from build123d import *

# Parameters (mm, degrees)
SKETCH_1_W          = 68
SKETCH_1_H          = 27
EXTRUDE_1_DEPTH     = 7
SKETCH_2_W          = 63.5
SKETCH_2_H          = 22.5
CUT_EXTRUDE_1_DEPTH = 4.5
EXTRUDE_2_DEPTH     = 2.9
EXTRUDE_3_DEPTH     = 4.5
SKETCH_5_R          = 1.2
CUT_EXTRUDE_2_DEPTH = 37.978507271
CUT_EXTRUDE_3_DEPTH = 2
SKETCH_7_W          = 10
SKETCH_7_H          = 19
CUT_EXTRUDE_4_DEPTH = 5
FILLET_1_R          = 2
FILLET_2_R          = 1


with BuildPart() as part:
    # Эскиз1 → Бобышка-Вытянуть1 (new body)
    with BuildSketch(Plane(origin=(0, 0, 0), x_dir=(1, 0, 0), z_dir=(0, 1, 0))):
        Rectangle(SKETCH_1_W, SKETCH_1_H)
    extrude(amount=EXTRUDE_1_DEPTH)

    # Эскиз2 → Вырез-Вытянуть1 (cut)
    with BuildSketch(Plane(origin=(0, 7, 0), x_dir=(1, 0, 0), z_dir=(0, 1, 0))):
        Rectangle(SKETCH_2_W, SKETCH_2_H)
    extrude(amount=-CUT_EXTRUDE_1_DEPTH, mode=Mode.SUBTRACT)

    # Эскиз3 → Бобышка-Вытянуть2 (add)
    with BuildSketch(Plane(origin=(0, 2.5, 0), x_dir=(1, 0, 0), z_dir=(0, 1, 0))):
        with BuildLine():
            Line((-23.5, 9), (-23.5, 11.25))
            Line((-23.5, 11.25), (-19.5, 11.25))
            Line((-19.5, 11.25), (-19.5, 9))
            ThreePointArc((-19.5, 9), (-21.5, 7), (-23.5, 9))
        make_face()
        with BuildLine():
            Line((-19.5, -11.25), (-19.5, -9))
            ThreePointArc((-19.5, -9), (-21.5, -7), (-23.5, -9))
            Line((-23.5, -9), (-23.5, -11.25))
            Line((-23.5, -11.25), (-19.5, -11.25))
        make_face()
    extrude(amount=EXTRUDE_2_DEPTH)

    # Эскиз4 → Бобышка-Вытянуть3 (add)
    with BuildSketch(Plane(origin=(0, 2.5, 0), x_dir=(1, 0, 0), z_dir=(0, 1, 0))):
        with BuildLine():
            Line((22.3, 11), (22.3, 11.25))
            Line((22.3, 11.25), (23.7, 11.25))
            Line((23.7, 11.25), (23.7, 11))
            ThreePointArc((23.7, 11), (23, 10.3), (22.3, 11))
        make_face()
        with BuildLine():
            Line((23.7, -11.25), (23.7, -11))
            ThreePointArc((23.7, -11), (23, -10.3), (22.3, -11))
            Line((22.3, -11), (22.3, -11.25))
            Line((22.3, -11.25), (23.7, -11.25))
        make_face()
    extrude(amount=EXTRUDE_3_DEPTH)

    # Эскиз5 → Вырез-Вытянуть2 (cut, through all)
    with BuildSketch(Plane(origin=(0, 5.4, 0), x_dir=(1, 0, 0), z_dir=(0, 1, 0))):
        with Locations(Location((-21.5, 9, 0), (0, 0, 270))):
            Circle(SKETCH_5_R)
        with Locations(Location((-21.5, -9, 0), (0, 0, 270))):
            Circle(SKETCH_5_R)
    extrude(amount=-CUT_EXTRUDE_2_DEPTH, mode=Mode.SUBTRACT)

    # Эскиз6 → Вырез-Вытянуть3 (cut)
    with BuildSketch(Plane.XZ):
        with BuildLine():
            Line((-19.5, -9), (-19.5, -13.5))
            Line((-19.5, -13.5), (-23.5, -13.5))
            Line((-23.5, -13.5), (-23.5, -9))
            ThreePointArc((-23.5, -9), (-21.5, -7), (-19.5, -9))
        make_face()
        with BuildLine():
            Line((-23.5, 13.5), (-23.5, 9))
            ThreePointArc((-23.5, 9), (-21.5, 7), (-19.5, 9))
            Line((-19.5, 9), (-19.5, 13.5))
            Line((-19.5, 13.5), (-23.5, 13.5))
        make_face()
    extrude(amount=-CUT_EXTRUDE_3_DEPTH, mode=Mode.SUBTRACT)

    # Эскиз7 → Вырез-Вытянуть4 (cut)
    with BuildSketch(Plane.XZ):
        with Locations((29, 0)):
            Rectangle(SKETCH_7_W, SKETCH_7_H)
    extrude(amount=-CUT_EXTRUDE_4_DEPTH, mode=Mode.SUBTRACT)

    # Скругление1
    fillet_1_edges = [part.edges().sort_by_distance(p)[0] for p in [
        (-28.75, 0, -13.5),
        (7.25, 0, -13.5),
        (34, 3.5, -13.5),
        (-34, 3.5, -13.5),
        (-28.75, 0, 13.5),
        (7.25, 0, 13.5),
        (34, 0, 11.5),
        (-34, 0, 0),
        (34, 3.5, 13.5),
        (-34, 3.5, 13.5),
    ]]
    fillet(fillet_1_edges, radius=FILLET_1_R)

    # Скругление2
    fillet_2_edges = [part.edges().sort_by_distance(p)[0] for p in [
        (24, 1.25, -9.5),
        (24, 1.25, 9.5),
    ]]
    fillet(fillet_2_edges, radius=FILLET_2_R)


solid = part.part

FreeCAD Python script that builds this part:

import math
import FreeCAD as App
import Part
import Sketcher
from FreeCAD import Vector
Q = App.Units.Quantity


def edges_at(feature, points):
    """Names of the edges that pass closest to the given points."""
    edges = feature.Shape.Edges
    near = lambda p: min(range(len(edges)), key=lambda i: edges[i].distToShape(Part.Vertex(*p))[0])
    return sorted({f"Edge{near(p) + 1}" for p in points})

doc = App.newDocument("Part")
body = doc.addObject("PartDesign::Body", "Body")

# Sketch on XZ plane
sketch1 = body.newObject("Sketcher::SketchObject", "Sketch")
sketch1.AttachmentSupport = (doc.getObject("XZ_Plane"), [""])
sketch1.MapMode = "FlatFace"
sketch1.addGeometry(Part.LineSegment(Vector(-34, -13.5, 0), Vector(-34, 13.5, 0)), False)
sketch1.addGeometry(Part.LineSegment(Vector(-34, 13.5, 0), Vector(34, 13.5, 0)), False)
sketch1.addGeometry(Part.LineSegment(Vector(34, 13.5, 0), Vector(34, -13.5, 0)), False)
sketch1.addGeometry(Part.LineSegment(Vector(34, -13.5, 0), Vector(-34, -13.5, 0)), False)
sketch1.addConstraint(Sketcher.Constraint("Coincident", 0, 2, 1, 1))
sketch1.addConstraint(Sketcher.Constraint("Coincident", 1, 2, 2, 1))
sketch1.addConstraint(Sketcher.Constraint("Coincident", 2, 2, 3, 1))
sketch1.addConstraint(Sketcher.Constraint("Coincident", 3, 2, 0, 1))
sketch1.addConstraint(Sketcher.Constraint("Vertical", 0))
sketch1.addConstraint(Sketcher.Constraint("Horizontal", 1))
sketch1.addConstraint(Sketcher.Constraint("Vertical", 2))
sketch1.addConstraint(Sketcher.Constraint("Horizontal", 3))
sketch1.addConstraint(Sketcher.Constraint("Symmetric", 0, 2, 2, 2, -1, 1))
sketch1.addConstraint(Sketcher.Constraint("DistanceX", 1, 1, 1, 2, Q("68 mm")))
sketch1.addConstraint(Sketcher.Constraint("DistanceY", 0, 1, 0, 2, Q("27 mm")))
pad1 = body.newObject("PartDesign::Pad", "Pad")
pad1.Profile = sketch1
pad1.Length = 7
pad1.Reversed = True

# Sketch on XZ plane
sketch2 = body.newObject("Sketcher::SketchObject", "Sketch001")
sketch2.AttachmentSupport = (doc.getObject("XZ_Plane"), [""])
sketch2.MapMode = "FlatFace"
sketch2.AttachmentOffset = App.Placement(Vector(0, 0, -7), App.Rotation())
sketch2.addGeometry(Part.LineSegment(Vector(-31.75, -11.25, 0), Vector(-31.75, 11.25, 0)), False)
sketch2.addGeometry(Part.LineSegment(Vector(-31.75, 11.25, 0), Vector(31.75, 11.25, 0)), False)
sketch2.addGeometry(Part.LineSegment(Vector(31.75, 11.25, 0), Vector(31.75, -11.25, 0)), False)
sketch2.addGeometry(Part.LineSegment(Vector(31.75, -11.25, 0), Vector(-31.75, -11.25, 0)), False)
sketch2.addConstraint(Sketcher.Constraint("Coincident", 0, 2, 1, 1))
sketch2.addConstraint(Sketcher.Constraint("Coincident", 1, 2, 2, 1))
sketch2.addConstraint(Sketcher.Constraint("Coincident", 2, 2, 3, 1))
sketch2.addConstraint(Sketcher.Constraint("Coincident", 3, 2, 0, 1))
sketch2.addConstraint(Sketcher.Constraint("Vertical", 0))
sketch2.addConstraint(Sketcher.Constraint("Horizontal", 1))
sketch2.addConstraint(Sketcher.Constraint("Vertical", 2))
sketch2.addConstraint(Sketcher.Constraint("Horizontal", 3))
sketch2.addConstraint(Sketcher.Constraint("Symmetric", 0, 2, 2, 2, -1, 1))
sketch2.addConstraint(Sketcher.Constraint("DistanceX", 1, 1, 1, 2, Q("63.5 mm")))
sketch2.addConstraint(Sketcher.Constraint("DistanceY", 0, 1, 0, 2, Q("22.5 mm")))
pocket1 = body.newObject("PartDesign::Pocket", "Pocket")
pocket1.Profile = sketch2
pocket1.Length = 4.5
pocket1.Reversed = True

# Sketch on XZ plane
sketch3 = body.newObject("Sketcher::SketchObject", "Sketch002")
sketch3.AttachmentSupport = (doc.getObject("XZ_Plane"), [""])
sketch3.MapMode = "FlatFace"
sketch3.AttachmentOffset = App.Placement(Vector(0, 0, -2.5), App.Rotation())
sketch3.addGeometry(Part.LineSegment(Vector(-23.5, -11.25, 0), Vector(-23.5, -9, 0)), False)
sketch3.addGeometry(Part.ArcOfCircle(Part.Circle(Vector(-21.5, -9, 0), Vector(0, 0, 1), 2), math.radians(0), math.radians(180)), False)
sketch3.addGeometry(Part.LineSegment(Vector(-19.5, -9, 0), Vector(-19.5, -11.25, 0)), False)
sketch3.addGeometry(Part.LineSegment(Vector(-19.5, -11.25, 0), Vector(-23.5, -11.25, 0)), False)
sketch3.addGeometry(Part.LineSegment(Vector(-19.5, 11.25, 0), Vector(-19.5, 9, 0)), False)
sketch3.addGeometry(Part.ArcOfCircle(Part.Circle(Vector(-21.5, 9, 0), Vector(0, 0, 1), 2), math.radians(180), math.radians(360)), False)
sketch3.addGeometry(Part.LineSegment(Vector(-23.5, 9, 0), Vector(-23.5, 11.25, 0)), False)
sketch3.addGeometry(Part.LineSegment(Vector(-23.5, 11.25, 0), Vector(-19.5, 11.25, 0)), False)
sketch3.addConstraint(Sketcher.Constraint("Tangent", 0, 2, 1, 2))
sketch3.addConstraint(Sketcher.Constraint("Tangent", 1, 1, 2, 1))
sketch3.addConstraint(Sketcher.Constraint("Coincident", 2, 2, 3, 1))
sketch3.addConstraint(Sketcher.Constraint("Coincident", 3, 2, 0, 1))
sketch3.addConstraint(Sketcher.Constraint("Tangent", 4, 2, 5, 2))
sketch3.addConstraint(Sketcher.Constraint("Tangent", 5, 1, 6, 1))
sketch3.addConstraint(Sketcher.Constraint("Coincident", 6, 2, 7, 1))
sketch3.addConstraint(Sketcher.Constraint("Coincident", 7, 2, 4, 1))
sketch3.addConstraint(Sketcher.Constraint("Vertical", 0))
sketch3.addConstraint(Sketcher.Constraint("Vertical", 2))
sketch3.addConstraint(Sketcher.Constraint("Horizontal", 3))
sketch3.addConstraint(Sketcher.Constraint("Vertical", 4))
sketch3.addConstraint(Sketcher.Constraint("Vertical", 6))
sketch3.addConstraint(Sketcher.Constraint("Horizontal", 7))
sketch3.addConstraint(Sketcher.Constraint("Equal", 1, 5))
sketch3.addConstraint(Sketcher.Constraint("Symmetric", 1, 3, 5, 3, -1))
sketch3.addConstraint(Sketcher.Constraint("Equal", 2, 4))
sketch3.addConstraint(Sketcher.Constraint("Radius", 1, Q("2 mm")))
sketch3.addConstraint(Sketcher.Constraint("DistanceY", 1, 3, -1, 1, Q("9 mm")))
sketch3.addConstraint(Sketcher.Constraint("DistanceY", 0, 1, 0, 2, Q("2.25 mm")))
sketch3.addConstraint(Sketcher.Constraint("DistanceX", 1, 3, -1, 1, Q("21.5 mm")))
pad2 = body.newObject("PartDesign::Pad", "Pad001")
pad2.Profile = sketch3
pad2.Length = 2.9
pad2.Reversed = True

# Sketch on XZ plane
sketch4 = body.newObject("Sketcher::SketchObject", "Sketch003")
sketch4.AttachmentSupport = (doc.getObject("XZ_Plane"), [""])
sketch4.MapMode = "FlatFace"
sketch4.AttachmentOffset = App.Placement(Vector(0, 0, -2.5), App.Rotation())
sketch4.addGeometry(Part.LineSegment(Vector(22.3, -11.25, 0), Vector(22.3, -11, 0)), False)
sketch4.addGeometry(Part.ArcOfCircle(Part.Circle(Vector(23, -11, 0), Vector(0, 0, 1), 0.7), math.radians(0), math.radians(180)), False)
sketch4.addGeometry(Part.LineSegment(Vector(23.7, -11, 0), Vector(23.7, -11.25, 0)), False)
sketch4.addGeometry(Part.LineSegment(Vector(23.7, -11.25, 0), Vector(22.3, -11.25, 0)), False)
sketch4.addGeometry(Part.LineSegment(Vector(23.7, 11.25, 0), Vector(23.7, 11, 0)), False)
sketch4.addGeometry(Part.ArcOfCircle(Part.Circle(Vector(23, 11, 0), Vector(0, 0, 1), 0.7), math.radians(180), math.radians(360)), False)
sketch4.addGeometry(Part.LineSegment(Vector(22.3, 11, 0), Vector(22.3, 11.25, 0)), False)
sketch4.addGeometry(Part.LineSegment(Vector(22.3, 11.25, 0), Vector(23.7, 11.25, 0)), False)
sketch4.addConstraint(Sketcher.Constraint("Tangent", 0, 2, 1, 2))
sketch4.addConstraint(Sketcher.Constraint("Tangent", 1, 1, 2, 1))
sketch4.addConstraint(Sketcher.Constraint("Coincident", 2, 2, 3, 1))
sketch4.addConstraint(Sketcher.Constraint("Coincident", 3, 2, 0, 1))
sketch4.addConstraint(Sketcher.Constraint("Tangent", 4, 2, 5, 2))
sketch4.addConstraint(Sketcher.Constraint("Tangent", 5, 1, 6, 1))
sketch4.addConstraint(Sketcher.Constraint("Coincident", 6, 2, 7, 1))
sketch4.addConstraint(Sketcher.Constraint("Coincident", 7, 2, 4, 1))
sketch4.addConstraint(Sketcher.Constraint("Vertical", 0))
sketch4.addConstraint(Sketcher.Constraint("Vertical", 2))
sketch4.addConstraint(Sketcher.Constraint("Horizontal", 3))
sketch4.addConstraint(Sketcher.Constraint("Vertical", 4))
sketch4.addConstraint(Sketcher.Constraint("Vertical", 6))
sketch4.addConstraint(Sketcher.Constraint("Horizontal", 7))
sketch4.addConstraint(Sketcher.Constraint("Equal", 1, 5))
sketch4.addConstraint(Sketcher.Constraint("Symmetric", 1, 3, 5, 3, -1))
sketch4.addConstraint(Sketcher.Constraint("Equal", 2, 4))
sketch4.addConstraint(Sketcher.Constraint("Radius", 1, Q("0.7 mm")))
sketch4.addConstraint(Sketcher.Constraint("DistanceX", -1, 1, 1, 3, Q("23 mm")))
sketch4.addConstraint(Sketcher.Constraint("DistanceY", 1, 3, -1, 1, Q("11 mm")))
sketch4.addConstraint(Sketcher.Constraint("DistanceY", 0, 1, 0, 2, Q("0.25 mm")))
pad3 = body.newObject("PartDesign::Pad", "Pad002")
pad3.Profile = sketch4
pad3.Length = 4.5
pad3.Reversed = True

# Sketch on XZ plane
sketch5 = body.newObject("Sketcher::SketchObject", "Sketch004")
sketch5.AttachmentSupport = (doc.getObject("XZ_Plane"), [""])
sketch5.MapMode = "FlatFace"
sketch5.AttachmentOffset = App.Placement(Vector(0, 0, -5.4), App.Rotation())
sketch5.addGeometry(Part.Circle(Vector(-21.5, -9, 0), Vector(0, 0, 1), 1.2), False)
sketch5.addGeometry(Part.Circle(Vector(-21.5, 9, 0), Vector(0, 0, 1), 1.2), False)
sketch5.addConstraint(Sketcher.Constraint("Equal", 0, 1))
sketch5.addConstraint(Sketcher.Constraint("Symmetric", 0, 3, 1, 3, -1))
sketch5.addConstraint(Sketcher.Constraint("Diameter", 0, Q("2.4 mm")))
sketch5.addConstraint(Sketcher.Constraint("DistanceY", 0, 3, -1, 1, Q("9 mm")))
sketch5.addConstraint(Sketcher.Constraint("DistanceX", 0, 3, -1, 1, Q("21.5 mm")))
pocket2 = body.newObject("PartDesign::Pocket", "Pocket001")
pocket2.Profile = sketch5
pocket2.Type = "ThroughAll"
pocket2.Reversed = True

# Sketch on XZ plane
sketch6 = body.newObject("Sketcher::SketchObject", "Sketch005")
sketch6.AttachmentSupport = (doc.getObject("XZ_Plane"), [""])
sketch6.MapMode = "FlatFace"
sketch6.addGeometry(Part.LineSegment(Vector(-19.5, -13.5, 0), Vector(-19.5, -9, 0)), False)
sketch6.addGeometry(Part.ArcOfCircle(Part.Circle(Vector(-21.5, -9, 0), Vector(0, 0, 1), 2), math.radians(0), math.radians(180)), False)
sketch6.addGeometry(Part.LineSegment(Vector(-23.5, -9, 0), Vector(-23.5, -13.5, 0)), False)
sketch6.addGeometry(Part.LineSegment(Vector(-23.5, -13.5, 0), Vector(-19.5, -13.5, 0)), False)
sketch6.addGeometry(Part.LineSegment(Vector(-23.5, 13.5, 0), Vector(-23.5, 9, 0)), False)
sketch6.addGeometry(Part.ArcOfCircle(Part.Circle(Vector(-21.5, 9, 0), Vector(0, 0, 1), 2), math.radians(180), math.radians(360)), False)
sketch6.addGeometry(Part.LineSegment(Vector(-19.5, 9, 0), Vector(-19.5, 13.5, 0)), False)
sketch6.addGeometry(Part.LineSegment(Vector(-19.5, 13.5, 0), Vector(-23.5, 13.5, 0)), False)
sketch6.addConstraint(Sketcher.Constraint("Tangent", 0, 2, 1, 1))
sketch6.addConstraint(Sketcher.Constraint("Tangent", 1, 2, 2, 1))
sketch6.addConstraint(Sketcher.Constraint("Coincident", 2, 2, 3, 1))
sketch6.addConstraint(Sketcher.Constraint("Coincident", 3, 2, 0, 1))
sketch6.addConstraint(Sketcher.Constraint("Tangent", 4, 2, 5, 1))
sketch6.addConstraint(Sketcher.Constraint("Tangent", 5, 2, 6, 1))
sketch6.addConstraint(Sketcher.Constraint("Coincident", 6, 2, 7, 1))
sketch6.addConstraint(Sketcher.Constraint("Coincident", 7, 2, 4, 1))
sketch6.addConstraint(Sketcher.Constraint("Vertical", 0))
sketch6.addConstraint(Sketcher.Constraint("Vertical", 2))
sketch6.addConstraint(Sketcher.Constraint("Horizontal", 3))
sketch6.addConstraint(Sketcher.Constraint("Vertical", 4))
sketch6.addConstraint(Sketcher.Constraint("Vertical", 6))
sketch6.addConstraint(Sketcher.Constraint("Horizontal", 7))
sketch6.addConstraint(Sketcher.Constraint("Equal", 1, 5))
sketch6.addConstraint(Sketcher.Constraint("Symmetric", 1, 3, 5, 3, -1))
sketch6.addConstraint(Sketcher.Constraint("Equal", 2, 4))
sketch6.addConstraint(Sketcher.Constraint("Radius", 1, Q("2 mm")))
sketch6.addConstraint(Sketcher.Constraint("DistanceY", 0, 1, 0, 2, Q("4.5 mm")))
sketch6.addConstraint(Sketcher.Constraint("DistanceY", 1, 3, -1, 1, Q("9 mm")))
sketch6.addConstraint(Sketcher.Constraint("DistanceX", 1, 3, -1, 1, Q("21.5 mm")))
pocket3 = body.newObject("PartDesign::Pocket", "Pocket002")
pocket3.Profile = sketch6
pocket3.Length = 2

# Sketch on XZ plane
sketch7 = body.newObject("Sketcher::SketchObject", "Sketch006")
sketch7.AttachmentSupport = (doc.getObject("XZ_Plane"), [""])
sketch7.MapMode = "FlatFace"
sketch7.addGeometry(Part.LineSegment(Vector(24, 9.5, 0), Vector(24, -9.5, 0)), False)
sketch7.addGeometry(Part.LineSegment(Vector(24, -9.5, 0), Vector(34, -9.5, 0)), False)
sketch7.addGeometry(Part.LineSegment(Vector(34, -9.5, 0), Vector(34, 9.5, 0)), False)
sketch7.addGeometry(Part.LineSegment(Vector(34, 9.5, 0), Vector(24, 9.5, 0)), False)
sketch7.addConstraint(Sketcher.Constraint("Coincident", 0, 2, 1, 1))
sketch7.addConstraint(Sketcher.Constraint("Coincident", 1, 2, 2, 1))
sketch7.addConstraint(Sketcher.Constraint("Coincident", 2, 2, 3, 1))
sketch7.addConstraint(Sketcher.Constraint("Coincident", 3, 2, 0, 1))
sketch7.addConstraint(Sketcher.Constraint("Vertical", 0))
sketch7.addConstraint(Sketcher.Constraint("Horizontal", 1))
sketch7.addConstraint(Sketcher.Constraint("Vertical", 2))
sketch7.addConstraint(Sketcher.Constraint("Horizontal", 3))
sketch7.addConstraint(Sketcher.Constraint("DistanceX", 1, 1, 1, 2, Q("10 mm")))
sketch7.addConstraint(Sketcher.Constraint("DistanceY", 0, 2, 0, 1, Q("19 mm")))
sketch7.addConstraint(Sketcher.Constraint("DistanceX", -1, 1, 0, 2, Q("24 mm")))
sketch7.addConstraint(Sketcher.Constraint("DistanceY", 0, 2, -1, 1, Q("9.5 mm")))
pocket4 = body.newObject("PartDesign::Pocket", "Pocket003")
pocket4.Profile = sketch7
pocket4.Length = 5
doc.recompute()

fillet = body.newObject("PartDesign::Fillet", "Fillet")
fillet.Base = (pocket4, edges_at(pocket4, [
    (-28.75, 0, -13.5),
    (7.25, 0, -13.5),
    (34, 3.5, -13.5),
    (-34, 3.5, -13.5),
    (-28.75, 0, 13.5),
    (7.25, 0, 13.5),
    (34, 0, 11.5),
    (-34, 0, 0),
    (34, 3.5, 13.5),
    (-34, 3.5, 13.5),
]))
fillet.Radius = 2
doc.recompute()

fillet2 = body.newObject("PartDesign::Fillet", "Fillet001")
fillet2.Base = (fillet, edges_at(fillet, [(24, 1.25, -9.5), (24, 1.25, 9.5)]))
fillet2.Radius = 1

doc.recompute()
